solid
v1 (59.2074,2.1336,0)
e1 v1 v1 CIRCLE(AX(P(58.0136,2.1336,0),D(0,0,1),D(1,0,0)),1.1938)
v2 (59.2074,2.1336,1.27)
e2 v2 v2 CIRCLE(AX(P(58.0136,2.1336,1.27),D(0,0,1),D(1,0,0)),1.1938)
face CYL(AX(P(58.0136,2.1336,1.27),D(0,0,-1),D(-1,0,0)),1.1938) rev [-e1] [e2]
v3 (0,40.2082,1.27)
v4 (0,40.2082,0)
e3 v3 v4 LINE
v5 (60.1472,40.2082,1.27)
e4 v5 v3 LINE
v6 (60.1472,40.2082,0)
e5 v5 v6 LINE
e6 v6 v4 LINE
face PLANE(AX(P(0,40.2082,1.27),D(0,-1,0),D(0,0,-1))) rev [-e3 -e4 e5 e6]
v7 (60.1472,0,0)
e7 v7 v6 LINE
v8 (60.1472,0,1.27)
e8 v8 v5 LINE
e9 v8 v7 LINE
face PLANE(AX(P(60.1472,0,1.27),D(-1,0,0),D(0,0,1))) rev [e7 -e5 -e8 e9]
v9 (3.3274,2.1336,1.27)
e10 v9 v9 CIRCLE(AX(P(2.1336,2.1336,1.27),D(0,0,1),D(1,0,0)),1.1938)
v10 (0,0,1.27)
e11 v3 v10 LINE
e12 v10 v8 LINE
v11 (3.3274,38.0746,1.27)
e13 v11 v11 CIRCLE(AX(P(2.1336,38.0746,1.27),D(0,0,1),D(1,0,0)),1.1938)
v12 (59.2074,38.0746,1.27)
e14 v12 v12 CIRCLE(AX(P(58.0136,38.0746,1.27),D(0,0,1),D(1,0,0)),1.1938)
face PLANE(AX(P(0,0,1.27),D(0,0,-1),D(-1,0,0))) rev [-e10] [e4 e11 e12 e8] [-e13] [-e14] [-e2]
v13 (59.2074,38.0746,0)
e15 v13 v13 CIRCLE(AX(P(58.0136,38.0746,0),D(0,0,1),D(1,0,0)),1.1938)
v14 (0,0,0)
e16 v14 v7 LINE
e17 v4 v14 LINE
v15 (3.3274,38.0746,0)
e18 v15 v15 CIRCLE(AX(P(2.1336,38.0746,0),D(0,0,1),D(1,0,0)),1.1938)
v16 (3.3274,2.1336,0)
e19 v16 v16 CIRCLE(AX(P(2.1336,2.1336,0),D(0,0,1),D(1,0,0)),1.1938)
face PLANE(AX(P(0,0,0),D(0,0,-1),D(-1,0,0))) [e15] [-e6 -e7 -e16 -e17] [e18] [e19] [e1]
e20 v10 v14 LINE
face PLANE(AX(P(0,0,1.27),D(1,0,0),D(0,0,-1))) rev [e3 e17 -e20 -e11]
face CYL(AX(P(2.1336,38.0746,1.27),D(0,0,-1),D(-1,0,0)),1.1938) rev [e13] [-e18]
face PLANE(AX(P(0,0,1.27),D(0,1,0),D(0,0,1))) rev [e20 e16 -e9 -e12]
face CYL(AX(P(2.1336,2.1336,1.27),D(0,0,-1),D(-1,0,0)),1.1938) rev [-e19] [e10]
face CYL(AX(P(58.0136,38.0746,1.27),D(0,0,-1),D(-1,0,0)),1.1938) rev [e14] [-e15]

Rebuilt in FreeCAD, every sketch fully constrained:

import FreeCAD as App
import Part
import Sketcher
Q = App.Units.Quantity


def add_polygon(sketch, points):
    """Adds a closed chain of lines whose ends are joined by coincident constraints."""
    first, n = sketch.GeometryCount, len(points)
    for a, b in zip(points, points[1:] + points[:1]):
        sketch.addGeometry(Part.LineSegment(App.Vector(*a, 0), App.Vector(*b, 0)), False)
    for i in range(n):
        sketch.addConstraint(Sketcher.Constraint("Coincident", first + i, 2, first + (i + 1) % n, 1))

doc = App.newDocument("Part")
body = doc.addObject("PartDesign::Body", "Body")

sketch1 = doc.addObject("Sketcher::SketchObject", "Sketch")
body.addObject(sketch1)
sketch1.AttachmentSupport = (doc.XY_Plane, [""])
sketch1.MapMode = "FlatFace"
add_polygon(sketch1, [(0, 40.2), (0, 0), (60.1, 0), (60.1, 40.2)])
sketch1.addGeometry(Part.Circle(App.Vector(2.1, 2.1, 0), App.Vector(0, 0, 1), 1.2), False)
sketch1.addGeometry(Part.Circle(App.Vector(58, 2.1, 0), App.Vector(0, 0, 1), 1.2), False)
sketch1.addGeometry(Part.Circle(App.Vector(2.1, 38.1, 0), App.Vector(0, 0, 1), 1.2), False)
sketch1.addGeometry(Part.Circle(App.Vector(58, 38.1, 0), App.Vector(0, 0, 1), 1.2), False)
sketch1.addConstraint(Sketcher.Constraint("Vertical", 0))
sketch1.addConstraint(Sketcher.Constraint("Horizontal", 1))
sketch1.addConstraint(Sketcher.Constraint("Vertical", 2))
sketch1.addConstraint(Sketcher.Constraint("Horizontal", 3))
sketch1.addConstraint(Sketcher.Constraint("Coincident", 0, 2, -1, 1))
sketch1.addConstraint(Sketcher.Constraint("Equal", 4, 5))
sketch1.addConstraint(Sketcher.Constraint("Equal", 5, 6))
sketch1.addConstraint(Sketcher.Constraint("Equal", 6, 7))
sketch1.addConstraint(Sketcher.Constraint("Horizontal", 4, 3, 5, 3))
sketch1.addConstraint(Sketcher.Constraint("Horizontal", 6, 3, 7, 3))
sketch1.addConstraint(Sketcher.Constraint("Vertical", 4, 3, 6, 3))
sketch1.addConstraint(Sketcher.Constraint("Vertical", 5, 3, 7, 3))
sketch1.addConstraint(Sketcher.Constraint("Diameter", 4, Q("0.094 in")))
sketch1.addConstraint(Sketcher.Constraint("DistanceX", 4, 3, 5, 3, Q("2.2 in")))
sketch1.addConstraint(Sketcher.Constraint("DistanceX", 1, 1, 1, 2, Q("2.368 in")))
sketch1.addConstraint(Sketcher.Constraint("DistanceY", 0, 2, 0, 1, Q("1.583 in")))
sketch1.addConstraint(Sketcher.Constraint("DistanceX", -1, 1, 4, 3, Q("0.084 in")))
sketch1.addConstraint(Sketcher.Constraint("DistanceY", -1, 1, 4, 3, Q("0.084 in")))
sketch1.addConstraint(Sketcher.Constraint("DistanceY", -1, 1, 6, 3, Q("1.499 in")))
pad1 = doc.addObject("PartDesign::Pad", "Pad")
body.addObject(pad1)
pad1.Profile = sketch1
pad1.Length = Q("0.05 in")

doc.recompute()
